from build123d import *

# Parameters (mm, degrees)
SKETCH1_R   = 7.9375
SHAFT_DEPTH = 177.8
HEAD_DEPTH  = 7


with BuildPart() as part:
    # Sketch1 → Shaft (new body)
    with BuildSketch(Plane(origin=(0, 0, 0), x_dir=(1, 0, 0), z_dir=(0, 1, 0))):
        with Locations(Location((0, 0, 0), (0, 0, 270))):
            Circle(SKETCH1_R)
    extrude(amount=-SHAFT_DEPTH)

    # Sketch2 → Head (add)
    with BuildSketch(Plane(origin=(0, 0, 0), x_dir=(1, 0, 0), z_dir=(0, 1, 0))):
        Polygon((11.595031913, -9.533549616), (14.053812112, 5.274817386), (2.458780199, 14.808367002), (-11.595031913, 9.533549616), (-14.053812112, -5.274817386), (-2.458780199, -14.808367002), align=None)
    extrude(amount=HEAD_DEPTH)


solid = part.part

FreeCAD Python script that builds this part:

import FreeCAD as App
import Part
import Sketcher

V = App.Vector
Q = App.Units.Quantity

doc = App.newDocument("Part")
body = doc.addObject("PartDesign::Body", "Body")

# Sketch on XZ plane
sketch1 = doc.addObject("Sketcher::SketchObject", "Sketch")
body.addObject(sketch1)
sketch1.AttachmentSupport = (doc.XZ_Plane, [""])
sketch1.MapMode = "FlatFace"
sketch1.addGeometry(Part.Circle(V(0, 0, 0), V(0, 0, 1), 8), False)
sketch1.addConstraint(Sketcher.Constraint("Coincident", 0, 3, -1, 1))
sketch1.addConstraint(Sketcher.Constraint("Diameter", 0, Q("0.625 in")))
pad1 = doc.addObject("PartDesign::Pad", "Pad")
body.addObject(pad1)
pad1.Profile = sketch1
pad1.Length = Q("7 in")

# Sketch on XZ plane
sketch2 = doc.addObject("Sketcher::SketchObject", "Sketch001")
body.addObject(sketch2)
sketch2.AttachmentSupport = (doc.XZ_Plane, [""])
sketch2.MapMode = "FlatFace"
sketch2.addGeometry(Part.LineSegment(V(12, 10, 0), V(14, -5, 0)), False)
sketch2.addGeometry(Part.LineSegment(V(14, -5, 0), V(2, -15, 0)), False)
sketch2.addGeometry(Part.LineSegment(V(2, -15, 0), V(-12, -10, 0)), False)
sketch2.addGeometry(Part.LineSegment(V(-12, -10, 0), V(-14, 5, 0)), False)
sketch2.addGeometry(Part.LineSegment(V(-14, 5, 0), V(-2, 15, 0)), False)
sketch2.addGeometry(Part.LineSegment(V(-2, 15, 0), V(12, 10, 0)), False)
sketch2.addConstraint(Sketcher.Constraint("Coincident", 0, 2, 1, 1))
sketch2.addConstraint(Sketcher.Constraint("Coincident", 1, 2, 2, 1))
sketch2.addConstraint(Sketcher.Constraint("Coincident", 2, 2, 3, 1))
sketch2.addConstraint(Sketcher.Constraint("Coincident", 3, 2, 4, 1))
sketch2.addConstraint(Sketcher.Constraint("Coincident", 4, 2, 5, 1))
sketch2.addConstraint(Sketcher.Constraint("Coincident", 5, 2, 0, 1))
sketch2.addConstraint(Sketcher.Constraint("Symmetric", 0, 2, 3, 2, -1, 1))
sketch2.addConstraint(Sketcher.Constraint("Symmetric", 1, 2, 4, 2, -1, 1))
sketch2.addConstraint(Sketcher.Constraint("Symmetric", 2, 2, 5, 2, -1, 1))
sketch2.addConstraint(Sketcher.Constraint("Equal", 0, 1))
sketch2.addConstraint(Sketcher.Constraint("Equal", 1, 2))
sketch2.addConstraint(Sketcher.Constraint("DistanceY", 2, 2, 5, 2, 19.067099))
sketch2.addConstraint(Sketcher.Constraint("DistanceX", -1, 1, 1, 2, 2.45878))
sketch2.addConstraint(Sketcher.Constraint("DistanceX", 2, 2, -1, 1, 11.595032))
sketch2.addConstraint(Sketcher.Constraint("DistanceX", 1, 2, 0, 2, 11.595032))
pad2 = doc.addObject("PartDesign::Pad", "Pad001")
body.addObject(pad2)
pad2.Profile = sketch2
pad2.Length = 7
pad2.Reversed = True

doc.recompute()
